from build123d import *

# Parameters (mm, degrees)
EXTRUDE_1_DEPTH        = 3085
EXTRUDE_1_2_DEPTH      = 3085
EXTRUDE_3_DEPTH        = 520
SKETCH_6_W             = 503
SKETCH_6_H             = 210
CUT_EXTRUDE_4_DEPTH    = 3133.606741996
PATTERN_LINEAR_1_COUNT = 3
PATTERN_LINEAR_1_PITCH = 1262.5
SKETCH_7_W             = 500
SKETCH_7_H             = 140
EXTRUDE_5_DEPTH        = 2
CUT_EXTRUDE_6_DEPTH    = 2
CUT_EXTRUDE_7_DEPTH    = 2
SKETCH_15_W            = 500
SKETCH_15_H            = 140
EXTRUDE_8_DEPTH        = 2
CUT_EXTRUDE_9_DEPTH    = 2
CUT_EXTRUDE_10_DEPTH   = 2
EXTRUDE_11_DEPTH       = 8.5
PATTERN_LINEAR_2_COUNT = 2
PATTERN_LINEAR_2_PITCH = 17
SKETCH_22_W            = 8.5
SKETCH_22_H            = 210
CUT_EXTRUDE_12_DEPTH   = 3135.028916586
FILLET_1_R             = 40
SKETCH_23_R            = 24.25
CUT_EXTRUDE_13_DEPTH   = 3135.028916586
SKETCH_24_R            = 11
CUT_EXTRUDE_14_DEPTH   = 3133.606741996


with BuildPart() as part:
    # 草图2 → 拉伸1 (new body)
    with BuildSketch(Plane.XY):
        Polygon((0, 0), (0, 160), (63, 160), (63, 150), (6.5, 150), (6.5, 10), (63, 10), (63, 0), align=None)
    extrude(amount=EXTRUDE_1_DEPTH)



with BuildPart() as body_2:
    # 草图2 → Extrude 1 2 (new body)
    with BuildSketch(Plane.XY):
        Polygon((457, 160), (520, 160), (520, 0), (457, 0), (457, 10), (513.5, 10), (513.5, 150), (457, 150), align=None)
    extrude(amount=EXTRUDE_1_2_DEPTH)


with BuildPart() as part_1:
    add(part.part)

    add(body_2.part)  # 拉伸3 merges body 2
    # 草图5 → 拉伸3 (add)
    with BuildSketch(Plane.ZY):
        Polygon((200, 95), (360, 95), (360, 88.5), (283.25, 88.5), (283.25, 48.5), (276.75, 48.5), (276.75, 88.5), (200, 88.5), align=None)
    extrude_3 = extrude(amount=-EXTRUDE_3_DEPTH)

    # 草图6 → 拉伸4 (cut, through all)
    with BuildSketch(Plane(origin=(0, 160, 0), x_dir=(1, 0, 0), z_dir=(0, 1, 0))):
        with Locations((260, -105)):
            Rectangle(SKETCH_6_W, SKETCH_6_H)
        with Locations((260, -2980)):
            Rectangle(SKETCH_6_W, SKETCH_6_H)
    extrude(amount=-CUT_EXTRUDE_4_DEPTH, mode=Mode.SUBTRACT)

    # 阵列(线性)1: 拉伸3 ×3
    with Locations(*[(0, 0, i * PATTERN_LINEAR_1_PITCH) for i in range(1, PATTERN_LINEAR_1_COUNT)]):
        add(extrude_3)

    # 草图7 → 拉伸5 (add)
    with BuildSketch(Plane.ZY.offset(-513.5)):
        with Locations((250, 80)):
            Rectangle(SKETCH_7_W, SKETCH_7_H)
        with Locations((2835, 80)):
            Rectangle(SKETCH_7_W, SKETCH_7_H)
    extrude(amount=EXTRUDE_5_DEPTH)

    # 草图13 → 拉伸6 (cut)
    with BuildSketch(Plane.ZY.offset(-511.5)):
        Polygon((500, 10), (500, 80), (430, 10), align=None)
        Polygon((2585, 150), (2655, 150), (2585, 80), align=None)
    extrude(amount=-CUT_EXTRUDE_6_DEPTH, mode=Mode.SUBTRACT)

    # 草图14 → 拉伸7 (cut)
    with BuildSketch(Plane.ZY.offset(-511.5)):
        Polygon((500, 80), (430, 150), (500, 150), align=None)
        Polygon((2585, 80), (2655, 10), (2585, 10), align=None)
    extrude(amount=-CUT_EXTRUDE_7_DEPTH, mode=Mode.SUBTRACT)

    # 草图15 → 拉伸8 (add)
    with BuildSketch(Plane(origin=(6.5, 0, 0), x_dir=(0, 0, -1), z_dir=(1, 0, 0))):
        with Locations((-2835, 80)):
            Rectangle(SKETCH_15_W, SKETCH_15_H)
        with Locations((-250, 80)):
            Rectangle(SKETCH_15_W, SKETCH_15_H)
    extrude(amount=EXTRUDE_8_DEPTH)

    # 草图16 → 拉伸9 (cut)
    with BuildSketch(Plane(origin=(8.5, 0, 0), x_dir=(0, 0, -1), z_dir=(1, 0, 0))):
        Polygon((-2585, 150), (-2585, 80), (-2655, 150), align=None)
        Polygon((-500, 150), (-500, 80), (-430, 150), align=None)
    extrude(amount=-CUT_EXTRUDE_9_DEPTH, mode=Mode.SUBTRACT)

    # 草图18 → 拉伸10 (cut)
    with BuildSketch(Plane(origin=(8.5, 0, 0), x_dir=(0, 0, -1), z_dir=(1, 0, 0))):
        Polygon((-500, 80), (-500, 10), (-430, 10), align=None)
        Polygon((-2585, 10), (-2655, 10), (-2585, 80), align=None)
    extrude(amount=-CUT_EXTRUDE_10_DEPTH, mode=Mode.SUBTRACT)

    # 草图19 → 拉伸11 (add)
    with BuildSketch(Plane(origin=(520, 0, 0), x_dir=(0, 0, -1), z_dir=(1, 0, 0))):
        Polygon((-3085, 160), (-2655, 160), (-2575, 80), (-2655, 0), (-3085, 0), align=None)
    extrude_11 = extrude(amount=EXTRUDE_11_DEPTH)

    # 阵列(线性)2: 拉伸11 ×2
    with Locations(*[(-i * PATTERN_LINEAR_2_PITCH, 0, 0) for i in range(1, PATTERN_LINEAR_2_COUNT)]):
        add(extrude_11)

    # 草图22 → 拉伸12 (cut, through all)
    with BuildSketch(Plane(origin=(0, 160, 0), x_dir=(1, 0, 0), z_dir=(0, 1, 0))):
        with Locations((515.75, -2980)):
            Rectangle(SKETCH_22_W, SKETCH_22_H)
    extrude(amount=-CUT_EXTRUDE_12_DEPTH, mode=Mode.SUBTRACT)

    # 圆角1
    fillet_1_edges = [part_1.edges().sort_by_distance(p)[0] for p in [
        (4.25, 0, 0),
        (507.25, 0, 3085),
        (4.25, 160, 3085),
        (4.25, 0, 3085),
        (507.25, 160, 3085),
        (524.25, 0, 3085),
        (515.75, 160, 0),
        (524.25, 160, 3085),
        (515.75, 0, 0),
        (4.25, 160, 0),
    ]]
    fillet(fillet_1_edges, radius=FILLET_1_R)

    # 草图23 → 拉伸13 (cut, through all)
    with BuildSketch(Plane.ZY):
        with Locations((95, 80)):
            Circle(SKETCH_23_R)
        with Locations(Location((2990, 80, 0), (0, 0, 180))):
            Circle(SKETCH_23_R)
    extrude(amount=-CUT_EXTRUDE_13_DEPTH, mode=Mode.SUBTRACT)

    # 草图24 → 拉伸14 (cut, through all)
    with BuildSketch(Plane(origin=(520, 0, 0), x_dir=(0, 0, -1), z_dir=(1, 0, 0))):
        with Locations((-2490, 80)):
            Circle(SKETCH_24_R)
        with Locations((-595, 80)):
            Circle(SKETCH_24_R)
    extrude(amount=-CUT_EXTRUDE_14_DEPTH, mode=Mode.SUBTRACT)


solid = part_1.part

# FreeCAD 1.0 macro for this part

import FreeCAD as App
import Part
import Sketcher

V = App.Vector
Q = App.Units.Quantity


def edges_at(feature, points):
    """Names of the edges that pass closest to the given points."""
    edges = feature.Shape.Edges
    near = lambda p: min(range(len(edges)), key=lambda i: edges[i].distToShape(Part.Vertex(*p))[0])
    return sorted({f"Edge{near(p) + 1}" for p in points})

doc = App.newDocument("Part")
params = doc.addObject("Spreadsheet::Sheet", "Params")
for row, (alias, value) in enumerate([
    ("sketch1_width", "63 mm"),
    ("sketch1_height", "160 mm"),
    ("sketch1_height2", "10 mm"),
    ("sketch1_width2", "56.5 mm"),
    ("pad1_length", "3085 mm"),
    ("sketch2_width", "63 mm"),
    ("sketch2_height", "10 mm"),
    ("sketch2_height2", "140 mm"),
    ("sketch2_width2", "56.5 mm"),
    ("pad2_length", "3085 mm"),
    ("sketch3_width", "40 mm"),
    ("sketch3_height", "160 mm"),
    ("sketch3_width2", "6.5 mm"),
    ("pad3_length", "520 mm"),
    ("sketch4_width", "503 mm"),
    ("sketch4_height", "210 mm"),
    ("linearpattern_pitch", "1262.5 mm"),
    ("sketch5_width", "140 mm"),
    ("sketch5_height", "500 mm"),
    ("pad4_length", "2 mm"),
    ("sketch6_width", "70 mm"),
    ("pocket2_length", "2 mm"),
    ("sketch7_width", "70 mm"),
    ("pocket3_length", "2 mm"),
    ("sketch8_width", "140 mm"),
    ("sketch8_height", "500 mm"),
    ("pad5_length", "2 mm"),
    ("sketch9_width", "70 mm"),
    ("pocket4_length", "2 mm"),
    ("sketch10_width", "70 mm"),
    ("pocket5_length", "2 mm"),
    ("sketch11_width", "160 mm"),
    ("sketch11_height", "430 mm"),
    ("pad6_length", "8.5 mm"),
    ("linearpattern2_pitch", "17 mm"),
    ("sketch12_height", "210 mm"),
    ("sketch12_width", "8.5 mm"),
    ("fillet_radius", "40 mm"),
    ("sketch13_diameter", "48.5 mm"),
    ("sketch14_diameter", "22 mm"),
], start=1):
    params.set(f"A{row}", alias)
    params.set(f"B{row}", "=" + value)
    params.setAlias(f"B{row}", alias)

body = doc.addObject("PartDesign::Body", "Body")

# Sketch on XY plane
sketch1 = doc.addObject("Sketcher::SketchObject", "Sketch")
body.addObject(sketch1)
sketch1.AttachmentSupport = (doc.XY_Plane, [""])
sketch1.MapMode = "FlatFace"
sketch1.addGeometry(Part.LineSegment(V(0, 160, 0), V(0, 0, 0)), False)
sketch1.addGeometry(Part.LineSegment(V(0, 0, 0), V(63, 0, 0)), False)
sketch1.addGeometry(Part.LineSegment(V(63, 0, 0), V(63, 10, 0)), False)
sketch1.addGeometry(Part.LineSegment(V(63, 10, 0), V(6, 10, 0)), False)
sketch1.addGeometry(Part.LineSegment(V(6, 10, 0), V(6, 150, 0)), False)
sketch1.addGeometry(Part.LineSegment(V(6, 150, 0), V(63, 150, 0)), False)
sketch1.addGeometry(Part.LineSegment(V(63, 150, 0), V(63, 160, 0)), False)
sketch1.addGeometry(Part.LineSegment(V(63, 160, 0), V(0, 160, 0)), False)
sketch1.addConstraint(Sketcher.Constraint("Coincident", 0, 2, 1, 1))
sketch1.addConstraint(Sketcher.Constraint("Coincident", 1, 2, 2, 1))
sketch1.addConstraint(Sketcher.Constraint("Coincident", 2, 2, 3, 1))
sketch1.addConstraint(Sketcher.Constraint("Coincident", 3, 2, 4, 1))
sketch1.addConstraint(Sketcher.Constraint("Coincident", 4, 2, 5, 1))
sketch1.addConstraint(Sketcher.Constraint("Coincident", 5, 2, 6, 1))
sketch1.addConstraint(Sketcher.Constraint("Coincident", 6, 2, 7, 1))
sketch1.addConstraint(Sketcher.Constraint("Coincident", 7, 2, 0, 1))
sketch1.addConstraint(Sketcher.Constraint("Vertical", 0))
sketch1.addConstraint(Sketcher.Constraint("Horizontal", 1))
sketch1.addConstraint(Sketcher.Constraint("Vertical", 2))
sketch1.addConstraint(Sketcher.Constraint("Horizontal", 3))
sketch1.addConstraint(Sketcher.Constraint("Vertical", 4))
sketch1.addConstraint(Sketcher.Constraint("Horizontal", 5))
sketch1.addConstraint(Sketcher.Constraint("Vertical", 6))
sketch1.addConstraint(Sketcher.Constraint("Horizontal", 7))
sketch1.addConstraint(Sketcher.Constraint("Coincident", 0, 2, -1, 1))
sketch1.addConstraint(Sketcher.Constraint("Vertical", 2, 2, 5, 2))
sketch1.addConstraint(Sketcher.Constraint("Equal", 2, 6))
sketch1.addConstraint(Sketcher.Constraint("DistanceX", 1, 1, 1, 2, Q("63 mm")))
sketch1.addConstraint(Sketcher.Constraint("DistanceY", 0, 2, 0, 1, Q("160 mm")))
sketch1.addConstraint(Sketcher.Constraint("DistanceY", 2, 1, 2, 2, Q("10 mm")))
sketch1.addConstraint(Sketcher.Constraint("DistanceX", 3, 2, 3, 1, Q("56.5 mm")))
sketch1.setExpression("Constraints[19]", "Params.sketch1_width")
sketch1.setExpression("Constraints[20]", "Params.sketch1_height")
sketch1.setExpression("Constraints[21]", "Params.sketch1_height2")
sketch1.setExpression("Constraints[22]", "Params.sketch1_width2")
pad1 = doc.addObject("PartDesign::Pad", "Pad")
body.addObject(pad1)
pad1.Profile = sketch1
pad1.setExpression("Length", "Params.pad1_length")
body2 = doc.addObject("PartDesign::Body", "Body001")

# Sketch on XY plane
sketch2 = doc.addObject("Sketcher::SketchObject", "Sketch001")
body2.addObject(sketch2)
sketch2.AttachmentSupport = (doc.getObject("XY_Plane001"), [""])
sketch2.MapMode = "FlatFace"
sketch2.addGeometry(Part.LineSegment(V(520, 160, 0), V(457, 160, 0)), False)
sketch2.addGeometry(Part.LineSegment(V(457, 160, 0), V(457, 150, 0)), False)
sketch2.addGeometry(Part.LineSegment(V(457, 150, 0), V(514, 150, 0)), False)
sketch2.addGeometry(Part.LineSegment(V(514, 150, 0), V(514, 10, 0)), False)
sketch2.addGeometry(Part.LineSegment(V(514, 10, 0), V(457, 10, 0)), False)
sketch2.addGeometry(Part.LineSegment(V(457, 10, 0), V(457, 0, 0)), False)
sketch2.addGeometry(Part.LineSegment(V(457, 0, 0), V(520, 0, 0)), False)
sketch2.addGeometry(Part.LineSegment(V(520, 0, 0), V(520, 160, 0)), False)
sketch2.addConstraint(Sketcher.Constraint("Coincident", 0, 2, 1, 1))
sketch2.addConstraint(Sketcher.Constraint("Coincident", 1, 2, 2, 1))
sketch2.addConstraint(Sketcher.Constraint("Coincident", 2, 2, 3, 1))
sketch2.addConstraint(Sketcher.Constraint("Coincident", 3, 2, 4, 1))
sketch2.addConstraint(Sketcher.Constraint("Coincident", 4, 2, 5, 1))
sketch2.addConstraint(Sketcher.Constraint("Coincident", 5, 2, 6, 1))
sketch2.addConstraint(Sketcher.Constraint("Coincident", 6, 2, 7, 1))
sketch2.addConstraint(Sketcher.Constraint("Coincident", 7, 2, 0, 1))
sketch2.addConstraint(Sketcher.Constraint("Horizontal", 0))
sketch2.addConstraint(Sketcher.Constraint("Vertical", 1))
sketch2.addConstraint(Sketcher.Constraint("Horizontal", 2))
sketch2.addConstraint(Sketcher.Constraint("Vertical", 3))
sketch2.addConstraint(Sketcher.Constraint("Horizontal", 4))
sketch2.addConstraint(Sketcher.Constraint("Vertical", 5))
sketch2.addConstraint(Sketcher.Constraint("Horizontal", 6))
sketch2.addConstraint(Sketcher.Constraint("Vertical", 7))
sketch2.addConstraint(Sketcher.Constraint("PointOnObject", 5, 2, -1))
sketch2.addConstraint(Sketcher.Constraint("Vertical", 1, 2, 4, 2))
sketch2.addConstraint(Sketcher.Constraint("Equal", 1, 5))
sketch2.addConstraint(Sketcher.Constraint("DistanceX", 0, 2, 0, 1, Q("63 mm")))
sketch2.addConstraint(Sketcher.Constraint("DistanceY", 1, 2, 1, 1, Q("10 mm")))
sketch2.addConstraint(Sketcher.Constraint("DistanceY", 3, 2, 3, 1, Q("140 mm")))
sketch2.addConstraint(Sketcher.Constraint("DistanceX", 2, 1, 2, 2, Q("56.5 mm")))
sketch2.addConstraint(Sketcher.Constraint("DistanceX", -1, 1, 0, 2, Q("457 mm")))
sketch2.setExpression("Constraints[19]", "Params.sketch2_width")
sketch2.setExpression("Constraints[20]", "Params.sketch2_height")
sketch2.setExpression("Constraints[21]", "Params.sketch2_height2")
sketch2.setExpression("Constraints[22]", "Params.sketch2_width2")
pad2 = doc.addObject("PartDesign::Pad", "Pad001")
body2.addObject(pad2)
pad2.Profile = sketch2
pad2.setExpression("Length", "Params.pad2_length")
body.AllowCompound = True
doc.recompute()

boolean = doc.addObject("PartDesign::Boolean", "Boolean")
body.addObject(boolean)
boolean.Type = "Fuse"
boolean.addObjects([body2])

# Sketch on YZ plane
sketch3 = doc.addObject("Sketcher::SketchObject", "Sketch002")
body.addObject(sketch3)
sketch3.AttachmentSupport = (doc.YZ_Plane, [""])
sketch3.MapMode = "FlatFace"
sketch3.addGeometry(Part.LineSegment(V(95, 360, 0), V(95, 200, 0)), False)
sketch3.addGeometry(Part.LineSegment(V(95, 200, 0), V(88, 200, 0)), False)
sketch3.addGeometry(Part.LineSegment(V(88, 200, 0), V(88, 277, 0)), False)
sketch3.addGeometry(Part.LineSegment(V(88, 277, 0), V(48, 277, 0)), False)
sketch3.addGeometry(Part.LineSegment(V(48, 277, 0), V(48, 283, 0)), False)
sketch3.addGeometry(Part.LineSegment(V(48, 283, 0), V(88, 283, 0)), False)
sketch3.addGeometry(Part.LineSegment(V(88, 283, 0), V(88, 360, 0)), False)
sketch3.addGeometry(Part.LineSegment(V(88, 360, 0), V(95, 360, 0)), False)
sketch3.addConstraint(Sketcher.Constraint("Coincident", 0, 2, 1, 1))
sketch3.addConstraint(Sketcher.Constraint("Coincident", 1, 2, 2, 1))
sketch3.addConstraint(Sketcher.Constraint("Coincident", 2, 2, 3, 1))
sketch3.addConstraint(Sketcher.Constraint("Coincident", 3, 2, 4, 1))
sketch3.addConstraint(Sketcher.Constraint("Coincident", 4, 2, 5, 1))
sketch3.addConstraint(Sketcher.Constraint("Coincident", 5, 2, 6, 1))
sketch3.addConstraint(Sketcher.Constraint("Coincident", 6, 2, 7, 1))
sketch3.addConstraint(Sketcher.Constraint("Coincident", 7, 2, 0, 1))
sketch3.addConstraint(Sketcher.Constraint("Vertical", 0))
sketch3.addConstraint(Sketcher.Constraint("Horizontal", 1))
sketch3.addConstraint(Sketcher.Constraint("Vertical", 2))
sketch3.addConstraint(Sketcher.Constraint("Horizontal", 3))
sketch3.addConstraint(Sketcher.Constraint("Vertical", 4))
sketch3.addConstraint(Sketcher.Constraint("Horizontal", 5))
sketch3.addConstraint(Sketcher.Constraint("Vertical", 6))
sketch3.addConstraint(Sketcher.Constraint("Horizontal", 7))
sketch3.addConstraint(Sketcher.Constraint("Vertical", 2, 2, 5, 2))
sketch3.addConstraint(Sketcher.Constraint("Equal", 7, 4))
sketch3.addConstraint(Sketcher.Constraint("Equal", 2, 6))
sketch3.addConstraint(Sketcher.Constraint("DistanceX", 3, 2, 3, 1, Q("40 mm")))
sketch3.addConstraint(Sketcher.Constraint("DistanceY", 0, 2, 0, 1, Q("160 mm")))
sketch3.addConstraint(Sketcher.Constraint("DistanceX", 1, 2, 1, 1, Q("6.5 mm")))
sketch3.addConstraint(Sketcher.Constraint("DistanceX", -1, 1, 0, 2, Q("95 mm")))
sketch3.addConstraint(Sketcher.Constraint("DistanceY", -1, 1, 0, 2, Q("200 mm")))
sketch3.setExpression("Constraints[19]", "Params.sketch3_width")
sketch3.setExpression("Constraints[20]", "Params.sketch3_height")
sketch3.setExpression("Constraints[21]", "Params.sketch3_width2")
pad3 = doc.addObject("PartDesign::Pad", "Pad002")
body.addObject(pad3)
pad3.Profile = sketch3
pad3.setExpression("Length", "Params.pad3_length")

# Sketch on XZ plane
sketch4 = doc.addObject("Sketcher::SketchObject", "Sketch003")
body.addObject(sketch4)
sketch4.AttachmentSupport = (doc.XZ_Plane, [""])
sketch4.MapMode = "FlatFace"
sketch4.AttachmentOffset = App.Placement(V(0, 0, -160), App.Rotation())
sketch4.addGeometry(Part.LineSegment(V(8, 0, 0), V(8, 210, 0)), False)
sketch4.addGeometry(Part.LineSegment(V(8, 210, 0), V(512, 210, 0)), False)
sketch4.addGeometry(Part.LineSegment(V(512, 210, 0), V(512, 0, 0)), False)
sketch4.addGeometry(Part.LineSegment(V(512, 0, 0), V(8, 0, 0)), False)
sketch4.addGeometry(Part.LineSegment(V(8, 2875, 0), V(8, 3085, 0)), False)
sketch4.addGeometry(Part.LineSegment(V(8, 3085, 0), V(512, 3085, 0)), False)
sketch4.addGeometry(Part.LineSegment(V(512, 3085, 0), V(512, 2875, 0)), False)
sketch4.addGeometry(Part.LineSegment(V(512, 2875, 0), V(8, 2875, 0)), False)
sketch4.addConstraint(Sketcher.Constraint("Coincident", 0, 2, 1, 1))
sketch4.addConstraint(Sketcher.Constraint("Coincident", 1, 2, 2, 1))
sketch4.addConstraint(Sketcher.Constraint("Coincident", 2, 2, 3, 1))
sketch4.addConstraint(Sketcher.Constraint("Coincident", 3, 2, 0, 1))
sketch4.addConstraint(Sketcher.Constraint("Coincident", 4, 2, 5, 1))
sketch4.addConstraint(Sketcher.Constraint("Coincident", 5, 2, 6, 1))
sketch4.addConstraint(Sketcher.Constraint("Coincident", 6, 2, 7, 1))
sketch4.addConstraint(Sketcher.Constraint("Coincident", 7, 2, 4, 1))
sketch4.addConstraint(Sketcher.Constraint("Vertical", 0))
sketch4.addConstraint(Sketcher.Constraint("Horizontal", 1))
sketch4.addConstraint(Sketcher.Constraint("Vertical", 2))
sketch4.addConstraint(Sketcher.Constraint("Horizontal", 3))
sketch4.addConstraint(Sketcher.Constraint("Vertical", 4))
sketch4.addConstraint(Sketcher.Constraint("Horizontal", 5))
sketch4.addConstraint(Sketcher.Constraint("Vertical", 6))
sketch4.addConstraint(Sketcher.Constraint("Horizontal", 7))
sketch4.addConstraint(Sketcher.Constraint("PointOnObject", 2, 2, -1))
sketch4.addConstraint(Sketcher.Constraint("Vertical", 3, 2, 4, 2))
sketch4.addConstraint(Sketcher.Constraint("Vertical", 2, 2, 5, 2))
sketch4.addConstraint(Sketcher.Constraint("Equal", 2, 4))
sketch4.addConstraint(Sketcher.Constraint("DistanceX", 1, 1, 1, 2, Q("503 mm")))
sketch4.addConstraint(Sketcher.Constraint("DistanceY", 0, 1, 0, 2, Q("210 mm")))
sketch4.addConstraint(Sketcher.Constraint("DistanceY", -1, 1, 4, 2, Q("3085 mm")))
sketch4.addConstraint(Sketcher.Constraint("DistanceX", -1, 1, 0, 2, Q("8.5 mm")))
sketch4.setExpression("Constraints[20]", "Params.sketch4_width")
sketch4.setExpression("Constraints[21]", "Params.sketch4_height")
pocket1 = doc.addObject("PartDesign::Pocket", "Pocket")
body.addObject(pocket1)
pocket1.Profile = sketch4
pocket1.Type = "ThroughAll"
pocket1.Reversed = True
doc.recompute()

linearpattern = doc.addObject("PartDesign::LinearPattern", "LinearPattern")
body.addObject(linearpattern)
linearpattern.Originals = [pad3]
linearpattern.Direction = (doc.Z_Axis, [""])
linearpattern.Mode = "offset"
linearpattern.setExpression("Offset", "Params.linearpattern_pitch")
linearpattern.Occurrences = 3
body.Tip = linearpattern

# Sketch on YZ plane
sketch5 = doc.addObject("Sketcher::SketchObject", "Sketch004")
body.addObject(sketch5)
sketch5.AttachmentSupport = (doc.YZ_Plane, [""])
sketch5.MapMode = "FlatFace"
sketch5.AttachmentOffset = App.Placement(V(0, 0, 513.5), App.Rotation())
sketch5.addGeometry(Part.LineSegment(V(150, 0, 0), V(10, 0, 0)), False)
sketch5.addGeometry(Part.LineSegment(V(10, 0, 0), V(10, 500, 0)), False)
sketch5.addGeometry(Part.LineSegment(V(10, 500, 0), V(150, 500, 0)), False)
sketch5.addGeometry(Part.LineSegment(V(150, 500, 0), V(150, 0, 0)), False)
sketch5.addGeometry(Part.LineSegment(V(150, 2585, 0), V(10, 2585, 0)), False)
sketch5.addGeometry(Part.LineSegment(V(10, 2585, 0), V(10, 3085, 0)), False)
sketch5.addGeometry(Part.LineSegment(V(10, 3085, 0), V(150, 3085, 0)), False)
sketch5.addGeometry(Part.LineSegment(V(150, 3085, 0), V(150, 2585, 0)), False)
sketch5.addConstraint(Sketcher.Constraint("Coincident", 0, 2, 1, 1))
sketch5.addConstraint(Sketcher.Constraint("Coincident", 1, 2, 2, 1))
sketch5.addConstraint(Sketcher.Constraint("Coincident", 2, 2, 3, 1))
sketch5.addConstraint(Sketcher.Constraint("Coincident", 3, 2, 0, 1))
sketch5.addConstraint(Sketcher.Constraint("Coincident", 4, 2, 5, 1))
sketch5.addConstraint(Sketcher.Constraint("Coincident", 5, 2, 6, 1))
sketch5.addConstraint(Sketcher.Constraint("Coincident", 6, 2, 7, 1))
sketch5.addConstraint(Sketcher.Constraint("Coincident", 7, 2, 4, 1))
sketch5.addConstraint(Sketcher.Constraint("Horizontal", 0))
sketch5.addConstraint(Sketcher.Constraint("Vertical", 1))
sketch5.addConstraint(Sketcher.Constraint("Horizontal", 2))
sketch5.addConstraint(Sketcher.Constraint("Vertical", 3))
sketch5.addConstraint(Sketcher.Constraint("Horizontal", 4))
sketch5.addConstraint(Sketcher.Constraint("Vertical", 5))
sketch5.addConstraint(Sketcher.Constraint("Horizontal", 6))
sketch5.addConstraint(Sketcher.Constraint("Vertical", 7))
sketch5.addConstraint(Sketcher.Constraint("PointOnObject", 0, 2, -1))
sketch5.addConstraint(Sketcher.Constraint("Vertical", 1, 2, 4, 2))
sketch5.addConstraint(Sketcher.Constraint("Vertical", 3, 2, 6, 2))
sketch5.addConstraint(Sketcher.Constraint("Equal", 3, 5))
sketch5.addConstraint(Sketcher.Constraint("DistanceX", 0, 2, 0, 1, Q("140 mm")))
sketch5.addConstraint(Sketcher.Constraint("DistanceY", 1, 1, 1, 2, Q("500 mm")))
sketch5.addConstraint(Sketcher.Constraint("DistanceX", -1, 1, 0, 2, Q("10 mm")))
sketch5.addConstraint(Sketcher.Constraint("DistanceY", -1, 1, 4, 2, Q("2585 mm")))
sketch5.setExpression("Constraints[20]", "Params.sketch5_width")
sketch5.setExpression("Constraints[21]", "Params.sketch5_height")
pad4 = doc.addObject("PartDesign::Pad", "Pad003")
body.addObject(pad4)
pad4.Profile = sketch5
pad4.setExpression("Length", "Params.pad4_length")
pad4.Reversed = True

# Sketch on YZ plane
sketch6 = doc.addObject("Sketcher::SketchObject", "Sketch005")
body.addObject(sketch6)
sketch6.AttachmentSupport = (doc.YZ_Plane, [""])
sketch6.MapMode = "FlatFace"
sketch6.AttachmentOffset = App.Placement(V(0, 0, 511.5), App.Rotation())
sketch6.addGeometry(Part.LineSegment(V(10, 500, 0), V(80, 500, 0)), False)
sketch6.addGeometry(Part.LineSegment(V(80, 500, 0), V(10, 430, 0)), False)
sketch6.addGeometry(Part.LineSegment(V(10, 430, 0), V(10, 500, 0)), False)
sketch6.addGeometry(Part.LineSegment(V(150, 2655, 0), V(150, 2585, 0)), False)
sketch6.addGeometry(Part.LineSegment(V(150, 2585, 0), V(80, 2585, 0)), False)
sketch6.addGeometry(Part.LineSegment(V(80, 2585, 0), V(150, 2655, 0)), False)
sketch6.addConstraint(Sketcher.Constraint("Coincident", 0, 2, 1, 1))
sketch6.addConstraint(Sketcher.Constraint("Coincident", 1, 2, 2, 1))
sketch6.addConstraint(Sketcher.Constraint("Coincident", 2, 2, 0, 1))
sketch6.addConstraint(Sketcher.Constraint("Coincident", 3, 2, 4, 1))
sketch6.addConstraint(Sketcher.Constraint("Coincident", 4, 2, 5, 1))
sketch6.addConstraint(Sketcher.Constraint("Coincident", 5, 2, 3, 1))
sketch6.addConstraint(Sketcher.Constraint("Horizontal", 0))
sketch6.addConstraint(Sketcher.Constraint("Vertical", 2))
sketch6.addConstraint(Sketcher.Constraint("Vertical", 3))
sketch6.addConstraint(Sketcher.Constraint("Horizontal", 4))
sketch6.addConstraint(Sketcher.Constraint("Parallel", 1, 5))
sketch6.addConstraint(Sketcher.Constraint("Vertical", 0, 2, 4, 2))
sketch6.addConstraint(Sketcher.Constraint("Equal", 0, 4))
sketch6.addConstraint(Sketcher.Constraint("Equal", 4, 2))
sketch6.addConstraint(Sketcher.Constraint("DistanceX", 0, 1, 0, 2, Q("70 mm")))
sketch6.addConstraint(Sketcher.Constraint("DistanceX", -1, 1, 0, 2, Q("80 mm")))
sketch6.addConstraint(Sketcher.Constraint("DistanceY", -1, 1, 0, 2, Q("500 mm")))
sketch6.addConstraint(Sketcher.Constraint("DistanceY", -1, 1, 3, 2, Q("2585 mm")))
sketch6.setExpression("Constraints[14]", "Params.sketch6_width")
pocket2 = doc.addObject("PartDesign::Pocket", "Pocket001")
body.addObject(pocket2)
pocket2.Profile = sketch6
pocket2.setExpression("Length", "Params.pocket2_length")
pocket2.Reversed = True

# Sketch on YZ plane
sketch7 = doc.addObject("Sketcher::SketchObject", "Sketch006")
body.addObject(sketch7)
sketch7.AttachmentSupport = (doc.YZ_Plane, [""])
sketch7.MapMode = "FlatFace"
sketch7.AttachmentOffset = App.Placement(V(0, 0, 511.5), App.Rotation())
sketch7.addGeometry(Part.LineSegment(V(150, 430, 0), V(80, 500, 0)), False)
sketch7.addGeometry(Part.LineSegment(V(80, 500, 0), V(150, 500, 0)), False)
sketch7.addGeometry(Part.LineSegment(V(150, 500, 0), V(150, 430, 0)), False)
sketch7.addGeometry(Part.LineSegment(V(10, 2655, 0), V(80, 2585, 0)), False)
sketch7.addGeometry(Part.LineSegment(V(80, 2585, 0), V(10, 2585, 0)), False)
sketch7.addGeometry(Part.LineSegment(V(10, 2585, 0), V(10, 2655, 0)), False)
sketch7.addConstraint(Sketcher.Constraint("Coincident", 0, 2, 1, 1))
sketch7.addConstraint(Sketcher.Constraint("Coincident", 1, 2, 2, 1))
sketch7.addConstraint(Sketcher.Constraint("Coincident", 2, 2, 0, 1))
sketch7.addConstraint(Sketcher.Constraint("Coincident", 3, 2, 4, 1))
sketch7.addConstraint(Sketcher.Constraint("Coincident", 4, 2, 5, 1))
sketch7.addConstraint(Sketcher.Constraint("Coincident", 5, 2, 3, 1))
sketch7.addConstraint(Sketcher.Constraint("Horizontal", 1))
sketch7.addConstraint(Sketcher.Constraint("Vertical", 2))
sketch7.addConstraint(Sketcher.Constraint("Horizontal", 4))
sketch7.addConstraint(Sketcher.Constraint("Vertical", 5))
sketch7.addConstraint(Sketcher.Constraint("Parallel", 0, 3))
sketch7.addConstraint(Sketcher.Constraint("Vertical", 0, 2, 3, 2))
sketch7.addConstraint(Sketcher.Constraint("Equal", 1, 4))
sketch7.addConstraint(Sketcher.Constraint("Equal", 4, 2))
sketch7.addConstraint(Sketcher.Constraint("DistanceX", 1, 1, 1, 2, Q("70 mm")))
sketch7.addConstraint(Sketcher.Constraint("DistanceX", -1, 1, 0, 2, Q("80 mm")))
sketch7.addConstraint(Sketcher.Constraint("DistanceY", -1, 1, 0, 2, Q("500 mm")))
sketch7.addConstraint(Sketcher.Constraint("DistanceY", -1, 1, 3, 2, Q("2585 mm")))
sketch7.setExpression("Constraints[14]", "Params.sketch7_width")
pocket3 = doc.addObject("PartDesign::Pocket", "Pocket002")
body.addObject(pocket3)
pocket3.Profile = sketch7
pocket3.setExpression("Length", "Params.pocket3_length")
pocket3.Reversed = True

# Sketch on YZ plane
sketch8 = doc.addObject("Sketcher::SketchObject", "Sketch007")
body.addObject(sketch8)
sketch8.AttachmentSupport = (doc.YZ_Plane, [""])
sketch8.MapMode = "FlatFace"
sketch8.AttachmentOffset = App.Placement(V(0, 0, 6.5), App.Rotation())
sketch8.addGeometry(Part.LineSegment(V(150, 3085, 0), V(10, 3085, 0)), False)
sketch8.addGeometry(Part.LineSegment(V(10, 3085, 0), V(10, 2585, 0)), False)
sketch8.addGeometry(Part.LineSegment(V(10, 2585, 0), V(150, 2585, 0)), False)
sketch8.addGeometry(Part.LineSegment(V(150, 2585, 0), V(150, 3085, 0)), False)
sketch8.addGeometry(Part.LineSegment(V(150, 500, 0), V(10, 500, 0)), False)
sketch8.addGeometry(Part.LineSegment(V(10, 500, 0), V(10, 0, 0)), False)
sketch8.addGeometry(Part.LineSegment(V(10, 0, 0), V(150, 0, 0)), False)
sketch8.addGeometry(Part.LineSegment(V(150, 0, 0), V(150, 500, 0)), False)
sketch8.addConstraint(Sketcher.Constraint("Coincident", 0, 2, 1, 1))
sketch8.addConstraint(Sketcher.Constraint("Coincident", 1, 2, 2, 1))
sketch8.addConstraint(Sketcher.Constraint("Coincident", 2, 2, 3, 1))
sketch8.addConstraint(Sketcher.Constraint("Coincident", 3, 2, 0, 1))
sketch8.addConstraint(Sketcher.Constraint("Coincident", 4, 2, 5, 1))
sketch8.addConstraint(Sketcher.Constraint("Coincident", 5, 2, 6, 1))
sketch8.addConstraint(Sketcher.Constraint("Coincident", 6, 2, 7, 1))
sketch8.addConstraint(Sketcher.Constraint("Coincident", 7, 2, 4, 1))
sketch8.addConstraint(Sketcher.Constraint("Horizontal", 0))
sketch8.addConstraint(Sketcher.Constraint("Vertical", 1))
sketch8.addConstraint(Sketcher.Constraint("Horizontal", 2))
sketch8.addConstraint(Sketcher.Constraint("Vertical", 3))
sketch8.addConstraint(Sketcher.Constraint("Horizontal", 4))
sketch8.addConstraint(Sketcher.Constraint("Vertical", 5))
sketch8.addConstraint(Sketcher.Constraint("Horizontal", 6))
sketch8.addConstraint(Sketcher.Constraint("Vertical", 7))
sketch8.addConstraint(Sketcher.Constraint("PointOnObject", 5, 2, -1))
sketch8.addConstraint(Sketcher.Constraint("Vertical", 1, 2, 4, 2))
sketch8.addConstraint(Sketcher.Constraint("Vertical", 3, 2, 6, 2))
sketch8.addConstraint(Sketcher.Constraint("Equal", 3, 5))
sketch8.addConstraint(Sketcher.Constraint("DistanceX", 0, 2, 0, 1, Q("140 mm")))
sketch8.addConstraint(Sketcher.Constraint("DistanceY", 1, 2, 1, 1, Q("500 mm")))
sketch8.addConstraint(Sketcher.Constraint("DistanceX", -1, 1, 0, 2, Q("10 mm")))
sketch8.addConstraint(Sketcher.Constraint("DistanceY", -1, 1, 0, 2, Q("3085 mm")))
sketch8.setExpression("Constraints[20]", "Params.sketch8_width")
sketch8.setExpression("Constraints[21]", "Params.sketch8_height")
pad5 = doc.addObject("PartDesign::Pad", "Pad004")
body.addObject(pad5)
pad5.Profile = sketch8
pad5.setExpression("Length", "Params.pad5_length")

# Sketch on YZ plane
sketch9 = doc.addObject("Sketcher::SketchObject", "Sketch008")
body.addObject(sketch9)
sketch9.AttachmentSupport = (doc.YZ_Plane, [""])
sketch9.MapMode = "FlatFace"
sketch9.AttachmentOffset = App.Placement(V(0, 0, 8.5), App.Rotation())
sketch9.addGeometry(Part.LineSegment(V(80, 2585, 0), V(150, 2585, 0)), False)
sketch9.addGeometry(Part.LineSegment(V(150, 2585, 0), V(150, 2655, 0)), False)
sketch9.addGeometry(Part.LineSegment(V(150, 2655, 0), V(80, 2585, 0)), False)
sketch9.addGeometry(Part.LineSegment(V(150, 500, 0), V(80, 500, 0)), False)
sketch9.addGeometry(Part.LineSegment(V(80, 500, 0), V(150, 430, 0)), False)
sketch9.addGeometry(Part.LineSegment(V(150, 430, 0), V(150, 500, 0)), False)
sketch9.addConstraint(Sketcher.Constraint("Coincident", 0, 2, 1, 1))
sketch9.addConstraint(Sketcher.Constraint("Coincident", 1, 2, 2, 1))
sketch9.addConstraint(Sketcher.Constraint("Coincident", 2, 2, 0, 1))
sketch9.addConstraint(Sketcher.Constraint("Coincident", 3, 2, 4, 1))
sketch9.addConstraint(Sketcher.Constraint("Coincident", 4, 2, 5, 1))
sketch9.addConstraint(Sketcher.Constraint("Coincident", 5, 2, 3, 1))
sketch9.addConstraint(Sketcher.Constraint("Horizontal", 0))
sketch9.addConstraint(Sketcher.Constraint("Vertical", 1))
sketch9.addConstraint(Sketcher.Constraint("Horizontal", 3))
sketch9.addConstraint(Sketcher.Constraint("Vertical", 5))
sketch9.addConstraint(Sketcher.Constraint("Perpendicular", 2, 4))
sketch9.addConstraint(Sketcher.Constraint("Vertical", 2, 2, 3, 2))
sketch9.addConstraint(Sketcher.Constraint("Vertical", 1, 2, 4, 2))
sketch9.addConstraint(Sketcher.Constraint("Equal", 3, 1))
sketch9.addConstraint(Sketcher.Constraint("DistanceX", 0, 1, 0, 2, Q("70 mm")))
sketch9.addConstraint(Sketcher.Constraint("DistanceX", -1, 1, 0, 2, Q("150 mm")))
sketch9.addConstraint(Sketcher.Constraint("DistanceY", -1, 1, 0, 2, Q("2585 mm")))
sketch9.addConstraint(Sketcher.Constraint("DistanceY", -1, 1, 3, 2, Q("500 mm")))
sketch9.setExpression("Constraints[14]", "Params.sketch9_width")
pocket4 = doc.addObject("PartDesign::Pocket", "Pocket003")
body.addObject(pocket4)
pocket4.Profile = sketch9
pocket4.setExpression("Length", "Params.pocket4_length")

# Sketch on YZ plane
sketch10 = doc.addObject("Sketcher::SketchObject", "Sketch009")
body.addObject(sketch10)
sketch10.AttachmentSupport = (doc.YZ_Plane, [""])
sketch10.MapMode = "FlatFace"
sketch10.AttachmentOffset = App.Placement(V(0, 0, 8.5), App.Rotation())
sketch10.addGeometry(Part.LineSegment(V(80, 500, 0), V(10, 500, 0)), False)
sketch10.addGeometry(Part.LineSegment(V(10, 500, 0), V(10, 430, 0)), False)
sketch10.addGeometry(Part.LineSegment(V(10, 430, 0), V(80, 500, 0)), False)
sketch10.addGeometry(Part.LineSegment(V(10, 2655, 0), V(10, 2585, 0)), False)
sketch10.addGeometry(Part.LineSegment(V(10, 2585, 0), V(80, 2585, 0)), False)
sketch10.addGeometry(Part.LineSegment(V(80, 2585, 0), V(10, 2655, 0)), False)
sketch10.addConstraint(Sketcher.Constraint("Coincident", 0, 2, 1, 1))
sketch10.addConstraint(Sketcher.Constraint("Coincident", 1, 2, 2, 1))
sketch10.addConstraint(Sketcher.Constraint("Coincident", 2, 2, 0, 1))
sketch10.addConstraint(Sketcher.Constraint("Coincident", 3, 2, 4, 1))
sketch10.addConstraint(Sketcher.Constraint("Coincident", 4, 2, 5, 1))
sketch10.addConstraint(Sketcher.Constraint("Coincident", 5, 2, 3, 1))
sketch10.addConstraint(Sketcher.Constraint("Horizontal", 0))
sketch10.addConstraint(Sketcher.Constraint("Vertical", 1))
sketch10.addConstraint(Sketcher.Constraint("Vertical", 3))
sketch10.addConstraint(Sketcher.Constraint("Horizontal", 4))
sketch10.addConstraint(Sketcher.Constraint("Perpendicular", 2, 5))
sketch10.addConstraint(Sketcher.Constraint("Vertical", 1, 2, 3, 2))
sketch10.addConstraint(Sketcher.Constraint("Vertical", 2, 2, 4, 2))
sketch10.addConstraint(Sketcher.Constraint("Equal", 4, 1))
sketch10.addConstraint(Sketcher.Constraint("DistanceX", 0, 2, 0, 1, Q("70 mm")))
sketch10.addConstraint(Sketcher.Constraint("DistanceX", -1, 1, 0, 2, Q("10 mm")))
sketch10.addConstraint(Sketcher.Constraint("DistanceY", -1, 1, 0, 2, Q("500 mm")))
sketch10.addConstraint(Sketcher.Constraint("DistanceY", -1, 1, 3, 2, Q("2585 mm")))
sketch10.setExpression("Constraints[14]", "Params.sketch10_width")
pocket5 = doc.addObject("PartDesign::Pocket", "Pocket004")
body.addObject(pocket5)
pocket5.Profile = sketch10
pocket5.setExpression("Length", "Params.pocket5_length")

# Sketch on YZ plane
sketch11 = doc.addObject("Sketcher::SketchObject", "Sketch010")
body.addObject(sketch11)
sketch11.AttachmentSupport = (doc.YZ_Plane, [""])
sketch11.MapMode = "FlatFace"
sketch11.AttachmentOffset = App.Placement(V(0, 0, 520), App.Rotation())
sketch11.addGeometry(Part.LineSegment(V(160, 2655, 0), V(160, 3085, 0)), False)
sketch11.addGeometry(Part.LineSegment(V(160, 3085, 0), V(0, 3085, 0)), False)
sketch11.addGeometry(Part.LineSegment(V(0, 3085, 0), V(0, 2655, 0)), False)
sketch11.addGeometry(Part.LineSegment(V(0, 2655, 0), V(80, 2575, 0)), False)
sketch11.addGeometry(Part.LineSegment(V(80, 2575, 0), V(160, 2655, 0)), False)
sketch11.addConstraint(Sketcher.Constraint("Coincident", 0, 2, 1, 1))
sketch11.addConstraint(Sketcher.Constraint("Coincident", 1, 2, 2, 1))
sketch11.addConstraint(Sketcher.Constraint("Coincident", 2, 2, 3, 1))
sketch11.addConstraint(Sketcher.Constraint("Coincident", 3, 2, 4, 1))
sketch11.addConstraint(Sketcher.Constraint("Coincident", 4, 2, 0, 1))
sketch11.addConstraint(Sketcher.Constraint("Vertical", 0))
sketch11.addConstraint(Sketcher.Constraint("Horizontal", 1))
sketch11.addConstraint(Sketcher.Constraint("Vertical", 2))
sketch11.addConstraint(Sketcher.Constraint("PointOnObject", 1, 2, -2))
sketch11.addConstraint(Sketcher.Constraint("Perpendicular", 3, 4))
sketch11.addConstraint(Sketcher.Constraint("Horizontal", 2, 2, 4, 2))
sketch11.addConstraint(Sketcher.Constraint("Equal", 3, 4))
sketch11.addConstraint(Sketcher.Constraint("DistanceX", 1, 2, 1, 1, Q("160 mm")))
sketch11.addConstraint(Sketcher.Constraint("DistanceY", 0, 1, 0, 2, Q("430 mm")))
sketch11.addConstraint(Sketcher.Constraint("DistanceY", -1, 1, 0, 2, Q("3085 mm")))
sketch11.setExpression("Constraints[12]", "Params.sketch11_width")
sketch11.setExpression("Constraints[13]", "Params.sketch11_height")
pad6 = doc.addObject("PartDesign::Pad", "Pad005")
body.addObject(pad6)
pad6.Profile = sketch11
pad6.setExpression("Length", "Params.pad6_length")
doc.recompute()

linearpattern2 = doc.addObject("PartDesign::LinearPattern", "LinearPattern001")
body.addObject(linearpattern2)
linearpattern2.Originals = [pad6]
linearpattern2.Direction = (doc.X_Axis, [""])
linearpattern2.Mode = "offset"
linearpattern2.setExpression("Offset", "Params.linearpattern2_pitch")
linearpattern2.Occurrences = 2
linearpattern2.Reversed = True
body.Tip = linearpattern2

# Sketch on XZ plane
sketch12 = doc.addObject("Sketcher::SketchObject", "Sketch011")
body.addObject(sketch12)
sketch12.AttachmentSupport = (doc.XZ_Plane, [""])
sketch12.MapMode = "FlatFace"
sketch12.AttachmentOffset = App.Placement(V(0, 0, -160), App.Rotation())
sketch12.addGeometry(Part.LineSegment(V(512, 2875, 0), V(512, 3085, 0)), False)
sketch12.addGeometry(Part.LineSegment(V(512, 3085, 0), V(520, 3085, 0)), False)
sketch12.addGeometry(Part.LineSegment(V(520, 3085, 0), V(520, 2875, 0)), False)
sketch12.addGeometry(Part.LineSegment(V(520, 2875, 0), V(512, 2875, 0)), False)
sketch12.addConstraint(Sketcher.Constraint("Coincident", 0, 2, 1, 1))
sketch12.addConstraint(Sketcher.Constraint("Coincident", 1, 2, 2, 1))
sketch12.addConstraint(Sketcher.Constraint("Coincident", 2, 2, 3, 1))
sketch12.addConstraint(Sketcher.Constraint("Coincident", 3, 2, 0, 1))
sketch12.addConstraint(Sketcher.Constraint("Vertical", 0))
sketch12.addConstraint(Sketcher.Constraint("Horizontal", 1))
sketch12.addConstraint(Sketcher.Constraint("Vertical", 2))
sketch12.addConstraint(Sketcher.Constraint("Horizontal", 3))
sketch12.addConstraint(Sketcher.Constraint("DistanceY", 0, 1, 0, 2, Q("210 mm")))
sketch12.addConstraint(Sketcher.Constraint("DistanceX", 1, 1, 1, 2, Q("8.5 mm")))
sketch12.addConstraint(Sketcher.Constraint("DistanceY", -1, 1, 0, 2, Q("3085 mm")))
sketch12.addConstraint(Sketcher.Constraint("DistanceX", -1, 1, 1, 2, Q("520 mm")))
sketch12.setExpression("Constraints[8]", "Params.sketch12_height")
sketch12.setExpression("Constraints[9]", "Params.sketch12_width")
pocket6 = doc.addObject("PartDesign::Pocket", "Pocket005")
body.addObject(pocket6)
pocket6.Profile = sketch12
pocket6.Type = "ThroughAll"
pocket6.Reversed = True
doc.recompute()

fillet = doc.addObject("PartDesign::Fillet", "Fillet")
body.addObject(fillet)
fillet.Base = (pocket6, edges_at(pocket6, [
    (4.25, 0, 0),
    (507.25, 0, 3085),
    (4.25, 160, 3085),
    (4.25, 0, 3085),
    (507.25, 160, 3085),
    (524.25, 0, 3085),
    (515.75, 160, 0),
    (524.25, 160, 3085),
    (515.75, 0, 0),
    (4.25, 160, 0),
]))
fillet.setExpression("Radius", "Params.fillet_radius")

# Sketch on YZ plane
sketch13 = doc.addObject("Sketcher::SketchObject", "Sketch012")
body.addObject(sketch13)
sketch13.AttachmentSupport = (doc.YZ_Plane, [""])
sketch13.MapMode = "FlatFace"
sketch13.addGeometry(Part.Circle(V(80, 95, 0), V(0, 0, 1), 24), False)
sketch13.addGeometry(Part.Circle(V(80, 2990, 0), V(0, 0, 1), 24), False)
sketch13.addConstraint(Sketcher.Constraint("Equal", 0, 1))
sketch13.addConstraint(Sketcher.Constraint("Vertical", 0, 3, 1, 3))
sketch13.addConstraint(Sketcher.Constraint("Diameter", 0, Q("48.5 mm")))
sketch13.addConstraint(Sketcher.Constraint("DistanceX", -1, 1, 0, 3, Q("80 mm")))
sketch13.addConstraint(Sketcher.Constraint("DistanceY", -1, 1, 0, 3, Q("95 mm")))
sketch13.addConstraint(Sketcher.Constraint("DistanceY", -1, 1, 1, 3, Q("2990 mm")))
sketch13.setExpression("Constraints[2]", "Params.sketch13_diameter")
pocket7 = doc.addObject("PartDesign::Pocket", "Pocket006")
body.addObject(pocket7)
pocket7.Profile = sketch13
pocket7.Type = "ThroughAll"
pocket7.Reversed = True

# Sketch on YZ plane
sketch14 = doc.addObject("Sketcher::SketchObject", "Sketch013")
body.addObject(sketch14)
sketch14.AttachmentSupport = (doc.YZ_Plane, [""])
sketch14.MapMode = "FlatFace"
sketch14.AttachmentOffset = App.Placement(V(0, 0, 520), App.Rotation())
sketch14.addGeometry(Part.Circle(V(80, 2490, 0), V(0, 0, 1), 11), False)
sketch14.addGeometry(Part.Circle(V(80, 595, 0), V(0, 0, 1), 11), False)
sketch14.addConstraint(Sketcher.Constraint("Equal", 0, 1))
sketch14.addConstraint(Sketcher.Constraint("Vertical", 0, 3, 1, 3))
sketch14.addConstraint(Sketcher.Constraint("Diameter", 0, Q("22 mm")))
sketch14.addConstraint(Sketcher.Constraint("DistanceX", -1, 1, 0, 3, Q("80 mm")))
sketch14.addConstraint(Sketcher.Constraint("DistanceY", -1, 1, 0, 3, Q("2490 mm")))
sketch14.addConstraint(Sketcher.Constraint("DistanceY", -1, 1, 1, 3, Q("595 mm")))
sketch14.setExpression("Constraints[2]", "Params.sketch14_diameter")
pocket8 = doc.addObject("PartDesign::Pocket", "Pocket007")
body.addObject(pocket8)
pocket8.Profile = sketch14
pocket8.Type = "ThroughAll"

doc.recompute()
